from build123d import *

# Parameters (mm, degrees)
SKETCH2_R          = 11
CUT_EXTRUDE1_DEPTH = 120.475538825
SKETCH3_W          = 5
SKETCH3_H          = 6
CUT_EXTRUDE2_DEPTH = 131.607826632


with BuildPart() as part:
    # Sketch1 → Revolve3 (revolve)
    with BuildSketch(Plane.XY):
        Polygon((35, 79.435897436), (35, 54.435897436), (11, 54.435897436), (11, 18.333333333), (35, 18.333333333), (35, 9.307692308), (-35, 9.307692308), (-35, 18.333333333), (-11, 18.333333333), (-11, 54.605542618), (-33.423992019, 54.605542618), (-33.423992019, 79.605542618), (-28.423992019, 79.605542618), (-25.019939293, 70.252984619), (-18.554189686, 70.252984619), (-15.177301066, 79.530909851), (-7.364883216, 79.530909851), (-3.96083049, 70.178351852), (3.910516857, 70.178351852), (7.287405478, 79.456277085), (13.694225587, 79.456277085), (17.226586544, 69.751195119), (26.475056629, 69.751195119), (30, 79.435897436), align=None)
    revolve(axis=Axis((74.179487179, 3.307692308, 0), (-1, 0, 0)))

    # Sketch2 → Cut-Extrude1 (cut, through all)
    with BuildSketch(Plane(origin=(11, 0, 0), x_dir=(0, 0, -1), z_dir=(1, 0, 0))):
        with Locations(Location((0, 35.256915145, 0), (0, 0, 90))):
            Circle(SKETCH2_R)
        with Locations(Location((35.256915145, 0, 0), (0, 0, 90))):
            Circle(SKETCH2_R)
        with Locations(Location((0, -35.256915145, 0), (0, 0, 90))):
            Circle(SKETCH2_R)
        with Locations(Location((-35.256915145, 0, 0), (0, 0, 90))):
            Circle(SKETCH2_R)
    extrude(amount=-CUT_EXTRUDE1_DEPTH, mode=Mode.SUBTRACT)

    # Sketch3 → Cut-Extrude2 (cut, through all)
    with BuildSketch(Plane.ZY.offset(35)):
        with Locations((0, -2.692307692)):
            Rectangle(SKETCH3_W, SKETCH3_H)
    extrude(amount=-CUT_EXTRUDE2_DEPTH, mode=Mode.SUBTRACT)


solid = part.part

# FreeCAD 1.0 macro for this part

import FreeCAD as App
import Part
import Sketcher

V = App.Vector
Q = App.Units.Quantity


def add_polygon(sketch, points):
    """Adds a closed chain of lines whose ends are joined by coincident constraints."""
    first, n = sketch.GeometryCount, len(points)
    for a, b in zip(points, points[1:] + points[:1]):
        sketch.addGeometry(Part.LineSegment(App.Vector(*a, 0), App.Vector(*b, 0)), False)
    for i in range(n):
        sketch.addConstraint(Sketcher.Constraint("Coincident", first + i, 2, first + (i + 1) % n, 1))

doc = App.newDocument("Part")
body = doc.addObject("PartDesign::Body", "Body")

# Sketch on XY plane
sketch1 = doc.addObject("Sketcher::SketchObject", "Sketch")
body.addObject(sketch1)
sketch1.AttachmentSupport = (doc.XY_Plane, [""])
sketch1.MapMode = "FlatFace"
add_polygon(sketch1, [(35, 54), (35, 79), (30, 79), (26, 70), (17, 70), (14, 79), (7, 79), (4, 70), (-4, 70), (-7, 80), (-15, 80), (-19, 70), (-25, 70), (-28, 80), (-33, 80), (-33, 55), (-11, 55), (-11, 18), (-35, 18), (-35, 9), (35, 9), (35, 18), (11, 18), (11, 54)])  # lines 0-23
sketch1.addGeometry(Part.LineSegment(V(35, 3, 0), V(-35, 3, 0)), True)  # axis
sketch1.addConstraint([
    Sketcher.Constraint("Vertical", 0),
    Sketcher.Constraint("Horizontal", 1),
    Sketcher.Constraint("Horizontal", 3),
    Sketcher.Constraint("Horizontal", 5),
    Sketcher.Constraint("Horizontal", 7),
    Sketcher.Constraint("Horizontal", 9),
    Sketcher.Constraint("Horizontal", 11),
    Sketcher.Constraint("Horizontal", 13),
    Sketcher.Constraint("Vertical", 14),
    Sketcher.Constraint("Horizontal", 15),
    Sketcher.Constraint("Vertical", 16),
    Sketcher.Constraint("Horizontal", 17),
    Sketcher.Constraint("Vertical", 18),
    Sketcher.Constraint("Horizontal", 19),
    Sketcher.Constraint("Vertical", 20),
    Sketcher.Constraint("Horizontal", 21),
    Sketcher.Constraint("Vertical", 22),
    Sketcher.Constraint("Horizontal", 23),
    Sketcher.Constraint("Horizontal", 24),
    Sketcher.Constraint("Symmetric", 17, 2, 20, 2, -2),
    Sketcher.Constraint("Parallel", 2, 6),
    Sketcher.Constraint("Parallel", 4, 8),
    Sketcher.Constraint("Parallel", 6, 10),
    Sketcher.Constraint("Parallel", 8, 12),
    Sketcher.Constraint("Vertical", 0, 2, 19, 2),
    Sketcher.Constraint("Vertical", 23, 2, 24, 1),
    Sketcher.Constraint("Vertical", 18, 2, 24, 2),
    Sketcher.Constraint("Equal", 1, 13),
    Sketcher.Constraint("Equal", 17, 21),
    Sketcher.Constraint("Equal", 0, 14),
    Sketcher.Constraint("Equal", 6, 10),
    Sketcher.Constraint("Equal", 8, 12),
    Sketcher.Constraint("DistanceX", 1, 2, 1, 1, 5.0),
    Sketcher.Constraint("DistanceX", 17, 2, 17, 1, 24.0),
    Sketcher.Constraint("DistanceX", 19, 1, 19, 2, 70.0),
    Sketcher.Constraint("DistanceY", 0, 1, 0, 2, 25.0),
    Sketcher.Constraint("Angle", 2, Q("-110 deg")),
    Sketcher.Constraint("Angle", 4, Q("110 deg")),
    Sketcher.Constraint("DistanceY", 24, 1, 19, 2, 6.0),
    Sketcher.Constraint("DistanceX", 3, 2, 3, 1, 9.24847),
    Sketcher.Constraint("DistanceX", 5, 2, 5, 1, 6.40682),
    Sketcher.Constraint("DistanceX", 11, 2, 11, 1, 6.46575),
    Sketcher.Constraint("DistanceY", 16, 2, 16, 1, 36.272209),
    Sketcher.Constraint("DistanceY", 18, 2, 18, 1, 9.025641),
    Sketcher.Constraint("DistanceX", 9, 2, -1, 1, 15.177301),
    Sketcher.Constraint("DistanceX", 8, 2, 6, 2, 11.2754),
    Sketcher.Constraint("Distance", 6, 9.873362),
    Sketcher.Constraint("DistanceX", 7, 2, 7, 1, 7.871347),
    Sketcher.Constraint("DistanceX", 9, 2, 9, 1, 7.812418),
    Sketcher.Constraint("DistanceY", 22, 1, 22, 2, 36.102564),
    Sketcher.Constraint("DistanceY", -1, 1, 6, 2, 70.178352),
])
revolution = doc.addObject("PartDesign::Revolution", "Revolution")
body.addObject(revolution)
revolution.Profile = sketch1
revolution.ReferenceAxis = (sketch1, ["Axis0"])
revolution.Angle = 360

# Sketch on YZ plane
sketch2 = doc.addObject("Sketcher::SketchObject", "Sketch001")
body.addObject(sketch2)
sketch2.AttachmentSupport = (doc.YZ_Plane, [""])
sketch2.MapMode = "FlatFace"
sketch2.AttachmentOffset = App.Placement(V(0, 0, 11), App.Rotation())
sketch2.addGeometry([
    Part.Circle(V(35, 0, 0), V(0, 0, 1), 11),
    Part.Circle(V(0, -35, 0), V(0, 0, 1), 11),
    Part.Circle(V(-35, 0, 0), V(0, 0, 1), 11),
    Part.Circle(V(0, 35, 0), V(0, 0, 1), 11),
], False)
sketch2.addConstraint([
    Sketcher.Constraint("Equal", 0, 1),
    Sketcher.Constraint("Equal", 1, 2),
    Sketcher.Constraint("Equal", 2, 3),
    Sketcher.Constraint("Symmetric", 0, 3, 2, 3, -1, 1),
    Sketcher.Constraint("Symmetric", 1, 3, 3, 3, -1, 1),
    Sketcher.Constraint("PointOnObject", 0, 3, -1),
    Sketcher.Constraint("PointOnObject", 1, 3, -2),
    Sketcher.Constraint("Diameter", 0, 22.0),
    Sketcher.Constraint("DistanceX", 2, 3, 0, 3, 70.51383),
    Sketcher.Constraint("DistanceY", 1, 3, 3, 3, 70.51383),
])
pocket1 = doc.addObject("PartDesign::Pocket", "Pocket")
body.addObject(pocket1)
pocket1.Profile = sketch2
pocket1.Type = "ThroughAll"

# Sketch on YZ plane
sketch3 = doc.addObject("Sketcher::SketchObject", "Sketch002")
body.addObject(sketch3)
sketch3.AttachmentSupport = (doc.YZ_Plane, [""])
sketch3.MapMode = "FlatFace"
sketch3.AttachmentOffset = App.Placement(V(0, 0, -35), App.Rotation())
add_polygon(sketch3, [(0, -2), (-6, -2), (-6, 2), (0, 2)])  # lines 0-3
sketch3.addConstraint([
    Sketcher.Constraint("Horizontal", 0),
    Sketcher.Constraint("Vertical", 1),
    Sketcher.Constraint("Horizontal", 2),
    Sketcher.Constraint("Vertical", 3),
    Sketcher.Constraint("DistanceX", 0, 2, 0, 1, 6.0),
    Sketcher.Constraint("DistanceY", 1, 1, 1, 2, 5.0),
    Sketcher.Constraint("DistanceY", 0, 2, -1, 1, 2.5),
    Sketcher.Constraint("DistanceX", 0, 2, -1, 1, 5.692308),
])
pocket2 = doc.addObject("PartDesign::Pocket", "Pocket001")
body.addObject(pocket2)
pocket2.Profile = sketch3
pocket2.Type = "ThroughAll"
pocket2.Reversed = True

doc.recompute()
